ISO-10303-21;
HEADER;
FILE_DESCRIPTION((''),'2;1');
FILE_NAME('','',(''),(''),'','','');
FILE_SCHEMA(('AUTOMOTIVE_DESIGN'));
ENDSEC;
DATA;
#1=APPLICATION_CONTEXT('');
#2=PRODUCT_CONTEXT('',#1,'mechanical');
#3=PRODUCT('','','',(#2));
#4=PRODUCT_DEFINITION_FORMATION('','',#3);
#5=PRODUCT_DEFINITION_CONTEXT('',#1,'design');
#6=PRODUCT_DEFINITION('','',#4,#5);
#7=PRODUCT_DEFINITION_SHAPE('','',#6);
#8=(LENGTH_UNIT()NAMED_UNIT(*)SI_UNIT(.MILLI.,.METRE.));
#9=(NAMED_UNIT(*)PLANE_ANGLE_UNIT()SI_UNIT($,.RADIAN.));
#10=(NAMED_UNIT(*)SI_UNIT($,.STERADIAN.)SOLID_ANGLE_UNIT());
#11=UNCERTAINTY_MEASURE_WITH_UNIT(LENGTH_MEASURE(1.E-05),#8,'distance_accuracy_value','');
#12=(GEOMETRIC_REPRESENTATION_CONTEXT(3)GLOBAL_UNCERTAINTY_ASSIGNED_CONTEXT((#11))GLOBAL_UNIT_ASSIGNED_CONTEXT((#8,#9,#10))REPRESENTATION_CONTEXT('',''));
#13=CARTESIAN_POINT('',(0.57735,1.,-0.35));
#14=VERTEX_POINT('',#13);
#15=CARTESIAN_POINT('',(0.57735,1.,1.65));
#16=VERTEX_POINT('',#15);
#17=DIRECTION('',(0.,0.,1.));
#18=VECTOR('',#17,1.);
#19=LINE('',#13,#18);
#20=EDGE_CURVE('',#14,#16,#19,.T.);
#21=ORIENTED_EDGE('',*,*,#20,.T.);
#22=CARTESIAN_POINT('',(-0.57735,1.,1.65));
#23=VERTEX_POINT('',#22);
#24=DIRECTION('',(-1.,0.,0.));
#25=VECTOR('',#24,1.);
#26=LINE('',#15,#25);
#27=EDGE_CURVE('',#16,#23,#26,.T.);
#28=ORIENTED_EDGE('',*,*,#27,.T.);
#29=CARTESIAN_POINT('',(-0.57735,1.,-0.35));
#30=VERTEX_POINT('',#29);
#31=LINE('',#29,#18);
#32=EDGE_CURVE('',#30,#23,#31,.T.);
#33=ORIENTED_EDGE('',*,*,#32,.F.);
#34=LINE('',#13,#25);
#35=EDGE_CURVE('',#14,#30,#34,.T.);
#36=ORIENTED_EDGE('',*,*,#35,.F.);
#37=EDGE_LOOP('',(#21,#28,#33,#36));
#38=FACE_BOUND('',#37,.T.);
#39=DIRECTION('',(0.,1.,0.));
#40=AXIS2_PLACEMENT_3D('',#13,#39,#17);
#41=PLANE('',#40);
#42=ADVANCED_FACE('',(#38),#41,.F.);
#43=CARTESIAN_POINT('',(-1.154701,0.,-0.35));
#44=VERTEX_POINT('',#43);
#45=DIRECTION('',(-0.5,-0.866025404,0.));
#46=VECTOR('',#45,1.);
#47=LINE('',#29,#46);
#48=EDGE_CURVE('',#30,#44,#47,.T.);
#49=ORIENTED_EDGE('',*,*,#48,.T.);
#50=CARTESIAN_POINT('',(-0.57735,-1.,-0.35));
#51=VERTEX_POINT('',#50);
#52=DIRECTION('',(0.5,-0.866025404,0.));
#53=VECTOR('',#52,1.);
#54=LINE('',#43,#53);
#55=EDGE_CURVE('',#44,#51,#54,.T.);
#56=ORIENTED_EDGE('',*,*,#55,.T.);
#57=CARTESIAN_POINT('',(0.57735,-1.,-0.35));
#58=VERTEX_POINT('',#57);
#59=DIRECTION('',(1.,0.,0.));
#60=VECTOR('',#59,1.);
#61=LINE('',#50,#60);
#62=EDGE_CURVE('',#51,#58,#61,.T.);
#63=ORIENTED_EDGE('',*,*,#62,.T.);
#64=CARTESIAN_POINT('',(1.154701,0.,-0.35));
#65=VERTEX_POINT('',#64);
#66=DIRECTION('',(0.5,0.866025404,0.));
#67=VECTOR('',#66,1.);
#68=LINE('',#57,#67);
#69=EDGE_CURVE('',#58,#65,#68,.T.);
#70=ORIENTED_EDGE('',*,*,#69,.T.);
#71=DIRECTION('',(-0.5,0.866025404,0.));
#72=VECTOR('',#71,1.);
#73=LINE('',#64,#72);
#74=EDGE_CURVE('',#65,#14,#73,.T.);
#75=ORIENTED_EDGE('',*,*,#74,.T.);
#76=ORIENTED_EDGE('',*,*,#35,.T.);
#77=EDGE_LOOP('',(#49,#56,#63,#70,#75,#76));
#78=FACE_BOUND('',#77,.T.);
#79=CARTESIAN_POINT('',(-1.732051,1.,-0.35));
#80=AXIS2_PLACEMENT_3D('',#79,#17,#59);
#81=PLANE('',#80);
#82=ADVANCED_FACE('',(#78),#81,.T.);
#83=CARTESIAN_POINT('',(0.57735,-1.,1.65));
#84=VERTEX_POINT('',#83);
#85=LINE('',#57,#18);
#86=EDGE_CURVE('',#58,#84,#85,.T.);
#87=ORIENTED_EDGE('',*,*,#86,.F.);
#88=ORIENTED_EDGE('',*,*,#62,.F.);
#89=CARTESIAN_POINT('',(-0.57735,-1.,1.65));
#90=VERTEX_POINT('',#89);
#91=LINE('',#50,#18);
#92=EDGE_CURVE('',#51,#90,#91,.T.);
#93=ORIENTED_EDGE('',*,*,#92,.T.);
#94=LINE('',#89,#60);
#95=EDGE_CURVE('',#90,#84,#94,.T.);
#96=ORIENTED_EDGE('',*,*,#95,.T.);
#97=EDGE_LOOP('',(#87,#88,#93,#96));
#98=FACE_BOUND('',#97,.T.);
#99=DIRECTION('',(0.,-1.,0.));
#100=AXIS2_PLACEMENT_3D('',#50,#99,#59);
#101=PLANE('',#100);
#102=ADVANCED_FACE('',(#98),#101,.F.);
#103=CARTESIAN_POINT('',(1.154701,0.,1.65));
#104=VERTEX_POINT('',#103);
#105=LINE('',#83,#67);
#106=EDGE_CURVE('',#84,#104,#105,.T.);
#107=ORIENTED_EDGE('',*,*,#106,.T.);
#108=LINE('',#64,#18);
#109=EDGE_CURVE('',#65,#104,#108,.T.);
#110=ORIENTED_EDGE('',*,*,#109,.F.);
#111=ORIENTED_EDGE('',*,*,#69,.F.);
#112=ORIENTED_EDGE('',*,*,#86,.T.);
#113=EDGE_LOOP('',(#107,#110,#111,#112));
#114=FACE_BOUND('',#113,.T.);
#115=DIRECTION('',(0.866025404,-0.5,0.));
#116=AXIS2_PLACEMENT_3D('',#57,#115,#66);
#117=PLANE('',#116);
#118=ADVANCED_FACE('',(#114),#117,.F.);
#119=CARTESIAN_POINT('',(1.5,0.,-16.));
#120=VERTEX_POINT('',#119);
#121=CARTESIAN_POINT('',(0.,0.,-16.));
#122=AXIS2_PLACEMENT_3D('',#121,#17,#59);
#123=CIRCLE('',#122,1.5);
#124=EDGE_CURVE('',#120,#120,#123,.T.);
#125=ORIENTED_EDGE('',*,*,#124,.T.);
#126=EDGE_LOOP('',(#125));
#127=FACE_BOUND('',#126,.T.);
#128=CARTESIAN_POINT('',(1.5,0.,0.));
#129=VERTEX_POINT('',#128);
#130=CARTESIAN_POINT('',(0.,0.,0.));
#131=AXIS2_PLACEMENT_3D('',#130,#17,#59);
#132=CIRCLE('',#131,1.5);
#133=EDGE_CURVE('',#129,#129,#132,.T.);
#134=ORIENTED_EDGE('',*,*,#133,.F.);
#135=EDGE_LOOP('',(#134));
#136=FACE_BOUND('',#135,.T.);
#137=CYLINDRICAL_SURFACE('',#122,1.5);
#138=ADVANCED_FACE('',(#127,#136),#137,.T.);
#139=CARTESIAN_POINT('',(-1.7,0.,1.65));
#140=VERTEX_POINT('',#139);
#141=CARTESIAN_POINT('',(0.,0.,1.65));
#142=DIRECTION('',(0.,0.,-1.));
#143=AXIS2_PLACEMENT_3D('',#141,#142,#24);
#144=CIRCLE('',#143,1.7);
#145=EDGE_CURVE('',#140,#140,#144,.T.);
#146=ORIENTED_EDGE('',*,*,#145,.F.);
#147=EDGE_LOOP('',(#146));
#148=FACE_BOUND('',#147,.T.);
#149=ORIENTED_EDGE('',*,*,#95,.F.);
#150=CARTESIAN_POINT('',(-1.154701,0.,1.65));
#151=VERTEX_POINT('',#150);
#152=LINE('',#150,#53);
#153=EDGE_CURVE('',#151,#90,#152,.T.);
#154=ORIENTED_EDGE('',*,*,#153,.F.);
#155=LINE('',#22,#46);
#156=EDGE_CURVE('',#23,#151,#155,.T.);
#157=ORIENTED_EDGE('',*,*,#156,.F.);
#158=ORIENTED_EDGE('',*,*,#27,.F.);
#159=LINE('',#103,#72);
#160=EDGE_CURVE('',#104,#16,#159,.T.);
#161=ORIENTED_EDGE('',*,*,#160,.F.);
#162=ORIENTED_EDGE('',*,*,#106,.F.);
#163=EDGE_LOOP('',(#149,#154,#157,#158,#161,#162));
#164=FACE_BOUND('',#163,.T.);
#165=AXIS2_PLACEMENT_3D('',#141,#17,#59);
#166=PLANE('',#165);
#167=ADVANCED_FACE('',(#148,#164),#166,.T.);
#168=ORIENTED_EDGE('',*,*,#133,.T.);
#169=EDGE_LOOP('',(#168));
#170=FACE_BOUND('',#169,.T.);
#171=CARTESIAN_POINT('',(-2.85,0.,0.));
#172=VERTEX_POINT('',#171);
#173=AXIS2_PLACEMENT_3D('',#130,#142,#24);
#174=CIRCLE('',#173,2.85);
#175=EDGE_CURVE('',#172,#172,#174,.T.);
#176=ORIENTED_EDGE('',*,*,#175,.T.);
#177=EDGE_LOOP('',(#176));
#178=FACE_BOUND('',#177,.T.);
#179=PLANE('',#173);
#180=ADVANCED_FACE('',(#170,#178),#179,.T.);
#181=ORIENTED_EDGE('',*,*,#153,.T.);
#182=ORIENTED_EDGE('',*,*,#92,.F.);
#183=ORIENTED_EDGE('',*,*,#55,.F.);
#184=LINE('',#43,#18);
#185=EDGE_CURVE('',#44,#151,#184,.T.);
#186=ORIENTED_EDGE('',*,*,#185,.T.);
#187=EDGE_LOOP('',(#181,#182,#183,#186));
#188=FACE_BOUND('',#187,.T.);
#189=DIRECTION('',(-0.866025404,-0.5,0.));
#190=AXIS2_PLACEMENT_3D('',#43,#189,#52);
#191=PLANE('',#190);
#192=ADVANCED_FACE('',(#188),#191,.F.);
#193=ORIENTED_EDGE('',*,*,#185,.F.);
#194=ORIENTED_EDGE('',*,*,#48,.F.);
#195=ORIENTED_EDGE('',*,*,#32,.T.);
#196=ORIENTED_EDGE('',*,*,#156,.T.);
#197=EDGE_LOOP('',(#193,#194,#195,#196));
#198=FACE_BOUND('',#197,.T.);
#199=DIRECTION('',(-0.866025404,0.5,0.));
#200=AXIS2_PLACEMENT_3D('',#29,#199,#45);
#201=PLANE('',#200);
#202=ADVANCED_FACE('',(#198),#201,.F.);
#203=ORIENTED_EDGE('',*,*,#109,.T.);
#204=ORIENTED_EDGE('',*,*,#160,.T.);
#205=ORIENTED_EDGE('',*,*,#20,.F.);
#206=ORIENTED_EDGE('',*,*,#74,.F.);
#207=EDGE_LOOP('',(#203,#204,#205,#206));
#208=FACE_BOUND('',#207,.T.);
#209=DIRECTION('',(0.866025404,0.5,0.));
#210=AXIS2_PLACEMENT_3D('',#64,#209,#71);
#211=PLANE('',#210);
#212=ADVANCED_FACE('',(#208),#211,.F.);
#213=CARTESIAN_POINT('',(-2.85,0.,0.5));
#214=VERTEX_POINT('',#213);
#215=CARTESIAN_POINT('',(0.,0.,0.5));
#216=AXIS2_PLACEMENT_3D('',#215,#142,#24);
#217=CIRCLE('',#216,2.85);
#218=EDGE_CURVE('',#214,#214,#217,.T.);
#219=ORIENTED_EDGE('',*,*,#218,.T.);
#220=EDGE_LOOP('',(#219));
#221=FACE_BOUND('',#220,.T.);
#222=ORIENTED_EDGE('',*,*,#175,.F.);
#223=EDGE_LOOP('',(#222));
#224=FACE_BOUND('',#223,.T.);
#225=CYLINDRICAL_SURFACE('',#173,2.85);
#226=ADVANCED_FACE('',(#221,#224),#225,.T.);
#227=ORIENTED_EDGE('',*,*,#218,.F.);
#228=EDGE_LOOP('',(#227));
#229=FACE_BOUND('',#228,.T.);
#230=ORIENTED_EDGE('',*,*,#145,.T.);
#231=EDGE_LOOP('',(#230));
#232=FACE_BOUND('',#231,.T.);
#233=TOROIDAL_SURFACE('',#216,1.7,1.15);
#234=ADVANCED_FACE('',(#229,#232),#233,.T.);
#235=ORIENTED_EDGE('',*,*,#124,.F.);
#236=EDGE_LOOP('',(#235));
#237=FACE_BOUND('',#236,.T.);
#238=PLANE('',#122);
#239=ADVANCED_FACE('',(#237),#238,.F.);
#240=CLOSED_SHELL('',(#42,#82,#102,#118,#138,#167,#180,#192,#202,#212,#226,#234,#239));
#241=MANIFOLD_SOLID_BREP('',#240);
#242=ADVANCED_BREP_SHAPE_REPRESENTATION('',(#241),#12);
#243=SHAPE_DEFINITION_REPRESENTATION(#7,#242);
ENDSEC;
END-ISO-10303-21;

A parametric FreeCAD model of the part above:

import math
import FreeCAD as App
import Part
import Sketcher

V = App.Vector
Q = App.Units.Quantity

doc = App.newDocument("Part")
params = doc.addObject("Spreadsheet::Sheet", "Params")
for row, (alias, value) in enumerate([
    ("sketch1_diameter", "3 mm"),
    ("pad1_length", "16 mm"),
    ("sketch2_radius", "1.15 mm"),
    ("sketch2_width", "1.7 mm"),
    ("sketch2_height", "0.5 mm"),
    ("revolution_angle", "360 deg"),
    ("pocket1_length", "2 mm"),
], start=1):
    params.set(f"A{row}", alias)
    params.set(f"B{row}", "=" + value)
    params.setAlias(f"B{row}", alias)

body = doc.addObject("PartDesign::Body", "Body")

# Sketch on XY plane
sketch1 = body.newObject("Sketcher::SketchObject", "Sketch")
sketch1.AttachmentSupport = (doc.getObject("XY_Plane"), [""])
sketch1.MapMode = "FlatFace"
sketch1.addGeometry(Part.Circle(V(0, 0, 0), V(0, 0, 1), 1.5), False)
sketch1.addConstraint([
    Sketcher.Constraint("Coincident", 0, 3, -1, 1),
    Sketcher.Constraint("Diameter", 0, 3.0),
])
sketch1.setExpression("Constraints[1]", "Params.sketch1_diameter")
pad1 = body.newObject("PartDesign::Pad", "Pad")
pad1.Profile = sketch1
pad1.setExpression("Length", "Params.pad1_length")
pad1.Reversed = True

# Sketch on YZ plane
sketch2 = body.newObject("Sketcher::SketchObject", "Sketch001")
sketch2.AttachmentSupport = (doc.getObject("YZ_Plane"), [""])
sketch2.MapMode = "FlatFace"
sketch2.addGeometry([
    Part.LineSegment(V(0, 0, 0), V(2.9, 0, 0)),  # 0
    Part.LineSegment(V(2.9, 0, 0), V(2.9, 0.5, 0)),  # 1
    Part.ArcOfCircle(Part.Circle(V(1.7, 0.5, 0), V(0, 0, 1), 1.2), math.radians(0), math.radians(90)),  # 2
    Part.LineSegment(V(1.7, 1.6, 0), V(0, 1.6, 0)),  # 3
    Part.LineSegment(V(0, 1.6, 0), V(0, 0, 0)),  # 4
], False)
sketch2.addConstraint([
    Sketcher.Constraint("Coincident", 0, 2, 1, 1),
    Sketcher.Constraint("Tangent", 1, 2, 2, 1),
    Sketcher.Constraint("Tangent", 2, 2, 3, 1),
    Sketcher.Constraint("Coincident", 3, 2, 4, 1),
    Sketcher.Constraint("Coincident", 4, 2, 0, 1),
    Sketcher.Constraint("Horizontal", 0),
    Sketcher.Constraint("Vertical", 1),
    Sketcher.Constraint("Horizontal", 3),
    Sketcher.Constraint("Vertical", 4),
    Sketcher.Constraint("Coincident", 4, 2, -1, 1),
    Sketcher.Constraint("Radius", 2, 1.15),
    Sketcher.Constraint("DistanceX", 3, 2, 3, 1, 1.7),
    Sketcher.Constraint("DistanceY", 1, 1, 1, 2, 0.5),
])
sketch2.setExpression("Constraints[10]", "Params.sketch2_radius")
sketch2.setExpression("Constraints[11]", "Params.sketch2_width")
sketch2.setExpression("Constraints[12]", "Params.sketch2_height")
revolution = body.newObject("PartDesign::Revolution", "Revolution")
revolution.Profile = sketch2
revolution.ReferenceAxis = (sketch2, ["V_Axis"])
revolution.setExpression("Angle", "Params.revolution_angle")

# Sketch on XY plane
sketch3 = body.newObject("Sketcher::SketchObject", "Sketch002")
sketch3.AttachmentSupport = (doc.getObject("XY_Plane"), [""])
sketch3.MapMode = "FlatFace"
sketch3.AttachmentOffset = App.Placement(V(0, 0, 1.65), App.Rotation())
sketch3.addGeometry([
    Part.LineSegment(V(-0.6, 1, 0), V(-1.2, 0, 0)),  # 0
    Part.LineSegment(V(-1.2, 0, 0), V(-0.6, -1, 0)),  # 1
    Part.LineSegment(V(-0.6, -1, 0), V(0.6, -1, 0)),  # 2
    Part.LineSegment(V(0.6, -1, 0), V(1.2, 0, 0)),  # 3
    Part.LineSegment(V(1.2, 0, 0), V(0.6, 1, 0)),  # 4
    Part.LineSegment(V(0.6, 1, 0), V(-0.6, 1, 0)),  # 5
], False)
sketch3.addConstraint([
    Sketcher.Constraint("Coincident", 0, 2, 1, 1),
    Sketcher.Constraint("Coincident", 1, 2, 2, 1),
    Sketcher.Constraint("Coincident", 2, 2, 3, 1),
    Sketcher.Constraint("Coincident", 3, 2, 4, 1),
    Sketcher.Constraint("Coincident", 4, 2, 5, 1),
    Sketcher.Constraint("Coincident", 5, 2, 0, 1),
    Sketcher.Constraint("Horizontal", 2),
    Sketcher.Constraint("Horizontal", 5),
    Sketcher.Constraint("Symmetric", 0, 2, 3, 2, -1, 1),
    Sketcher.Constraint("Symmetric", 1, 2, 4, 2, -1, 1),
    Sketcher.Constraint("PointOnObject", 0, 2, -1),
    Sketcher.Constraint("Parallel", 0, 3),
    Sketcher.Constraint("Vertical", 2, 2, 4, 2),
    Sketcher.Constraint("Angle", 0, Q("-120 deg")),
    Sketcher.Constraint("DistanceY", 1, 2, -1, 1, 1.0),
    Sketcher.Constraint("DistanceX", 2, 1, 2, 2, 1.154701),
])
pocket1 = body.newObject("PartDesign::Pocket", "Pocket")
pocket1.Profile = sketch3
pocket1.setExpression("Length", "Params.pocket1_length")

doc.recompute()
